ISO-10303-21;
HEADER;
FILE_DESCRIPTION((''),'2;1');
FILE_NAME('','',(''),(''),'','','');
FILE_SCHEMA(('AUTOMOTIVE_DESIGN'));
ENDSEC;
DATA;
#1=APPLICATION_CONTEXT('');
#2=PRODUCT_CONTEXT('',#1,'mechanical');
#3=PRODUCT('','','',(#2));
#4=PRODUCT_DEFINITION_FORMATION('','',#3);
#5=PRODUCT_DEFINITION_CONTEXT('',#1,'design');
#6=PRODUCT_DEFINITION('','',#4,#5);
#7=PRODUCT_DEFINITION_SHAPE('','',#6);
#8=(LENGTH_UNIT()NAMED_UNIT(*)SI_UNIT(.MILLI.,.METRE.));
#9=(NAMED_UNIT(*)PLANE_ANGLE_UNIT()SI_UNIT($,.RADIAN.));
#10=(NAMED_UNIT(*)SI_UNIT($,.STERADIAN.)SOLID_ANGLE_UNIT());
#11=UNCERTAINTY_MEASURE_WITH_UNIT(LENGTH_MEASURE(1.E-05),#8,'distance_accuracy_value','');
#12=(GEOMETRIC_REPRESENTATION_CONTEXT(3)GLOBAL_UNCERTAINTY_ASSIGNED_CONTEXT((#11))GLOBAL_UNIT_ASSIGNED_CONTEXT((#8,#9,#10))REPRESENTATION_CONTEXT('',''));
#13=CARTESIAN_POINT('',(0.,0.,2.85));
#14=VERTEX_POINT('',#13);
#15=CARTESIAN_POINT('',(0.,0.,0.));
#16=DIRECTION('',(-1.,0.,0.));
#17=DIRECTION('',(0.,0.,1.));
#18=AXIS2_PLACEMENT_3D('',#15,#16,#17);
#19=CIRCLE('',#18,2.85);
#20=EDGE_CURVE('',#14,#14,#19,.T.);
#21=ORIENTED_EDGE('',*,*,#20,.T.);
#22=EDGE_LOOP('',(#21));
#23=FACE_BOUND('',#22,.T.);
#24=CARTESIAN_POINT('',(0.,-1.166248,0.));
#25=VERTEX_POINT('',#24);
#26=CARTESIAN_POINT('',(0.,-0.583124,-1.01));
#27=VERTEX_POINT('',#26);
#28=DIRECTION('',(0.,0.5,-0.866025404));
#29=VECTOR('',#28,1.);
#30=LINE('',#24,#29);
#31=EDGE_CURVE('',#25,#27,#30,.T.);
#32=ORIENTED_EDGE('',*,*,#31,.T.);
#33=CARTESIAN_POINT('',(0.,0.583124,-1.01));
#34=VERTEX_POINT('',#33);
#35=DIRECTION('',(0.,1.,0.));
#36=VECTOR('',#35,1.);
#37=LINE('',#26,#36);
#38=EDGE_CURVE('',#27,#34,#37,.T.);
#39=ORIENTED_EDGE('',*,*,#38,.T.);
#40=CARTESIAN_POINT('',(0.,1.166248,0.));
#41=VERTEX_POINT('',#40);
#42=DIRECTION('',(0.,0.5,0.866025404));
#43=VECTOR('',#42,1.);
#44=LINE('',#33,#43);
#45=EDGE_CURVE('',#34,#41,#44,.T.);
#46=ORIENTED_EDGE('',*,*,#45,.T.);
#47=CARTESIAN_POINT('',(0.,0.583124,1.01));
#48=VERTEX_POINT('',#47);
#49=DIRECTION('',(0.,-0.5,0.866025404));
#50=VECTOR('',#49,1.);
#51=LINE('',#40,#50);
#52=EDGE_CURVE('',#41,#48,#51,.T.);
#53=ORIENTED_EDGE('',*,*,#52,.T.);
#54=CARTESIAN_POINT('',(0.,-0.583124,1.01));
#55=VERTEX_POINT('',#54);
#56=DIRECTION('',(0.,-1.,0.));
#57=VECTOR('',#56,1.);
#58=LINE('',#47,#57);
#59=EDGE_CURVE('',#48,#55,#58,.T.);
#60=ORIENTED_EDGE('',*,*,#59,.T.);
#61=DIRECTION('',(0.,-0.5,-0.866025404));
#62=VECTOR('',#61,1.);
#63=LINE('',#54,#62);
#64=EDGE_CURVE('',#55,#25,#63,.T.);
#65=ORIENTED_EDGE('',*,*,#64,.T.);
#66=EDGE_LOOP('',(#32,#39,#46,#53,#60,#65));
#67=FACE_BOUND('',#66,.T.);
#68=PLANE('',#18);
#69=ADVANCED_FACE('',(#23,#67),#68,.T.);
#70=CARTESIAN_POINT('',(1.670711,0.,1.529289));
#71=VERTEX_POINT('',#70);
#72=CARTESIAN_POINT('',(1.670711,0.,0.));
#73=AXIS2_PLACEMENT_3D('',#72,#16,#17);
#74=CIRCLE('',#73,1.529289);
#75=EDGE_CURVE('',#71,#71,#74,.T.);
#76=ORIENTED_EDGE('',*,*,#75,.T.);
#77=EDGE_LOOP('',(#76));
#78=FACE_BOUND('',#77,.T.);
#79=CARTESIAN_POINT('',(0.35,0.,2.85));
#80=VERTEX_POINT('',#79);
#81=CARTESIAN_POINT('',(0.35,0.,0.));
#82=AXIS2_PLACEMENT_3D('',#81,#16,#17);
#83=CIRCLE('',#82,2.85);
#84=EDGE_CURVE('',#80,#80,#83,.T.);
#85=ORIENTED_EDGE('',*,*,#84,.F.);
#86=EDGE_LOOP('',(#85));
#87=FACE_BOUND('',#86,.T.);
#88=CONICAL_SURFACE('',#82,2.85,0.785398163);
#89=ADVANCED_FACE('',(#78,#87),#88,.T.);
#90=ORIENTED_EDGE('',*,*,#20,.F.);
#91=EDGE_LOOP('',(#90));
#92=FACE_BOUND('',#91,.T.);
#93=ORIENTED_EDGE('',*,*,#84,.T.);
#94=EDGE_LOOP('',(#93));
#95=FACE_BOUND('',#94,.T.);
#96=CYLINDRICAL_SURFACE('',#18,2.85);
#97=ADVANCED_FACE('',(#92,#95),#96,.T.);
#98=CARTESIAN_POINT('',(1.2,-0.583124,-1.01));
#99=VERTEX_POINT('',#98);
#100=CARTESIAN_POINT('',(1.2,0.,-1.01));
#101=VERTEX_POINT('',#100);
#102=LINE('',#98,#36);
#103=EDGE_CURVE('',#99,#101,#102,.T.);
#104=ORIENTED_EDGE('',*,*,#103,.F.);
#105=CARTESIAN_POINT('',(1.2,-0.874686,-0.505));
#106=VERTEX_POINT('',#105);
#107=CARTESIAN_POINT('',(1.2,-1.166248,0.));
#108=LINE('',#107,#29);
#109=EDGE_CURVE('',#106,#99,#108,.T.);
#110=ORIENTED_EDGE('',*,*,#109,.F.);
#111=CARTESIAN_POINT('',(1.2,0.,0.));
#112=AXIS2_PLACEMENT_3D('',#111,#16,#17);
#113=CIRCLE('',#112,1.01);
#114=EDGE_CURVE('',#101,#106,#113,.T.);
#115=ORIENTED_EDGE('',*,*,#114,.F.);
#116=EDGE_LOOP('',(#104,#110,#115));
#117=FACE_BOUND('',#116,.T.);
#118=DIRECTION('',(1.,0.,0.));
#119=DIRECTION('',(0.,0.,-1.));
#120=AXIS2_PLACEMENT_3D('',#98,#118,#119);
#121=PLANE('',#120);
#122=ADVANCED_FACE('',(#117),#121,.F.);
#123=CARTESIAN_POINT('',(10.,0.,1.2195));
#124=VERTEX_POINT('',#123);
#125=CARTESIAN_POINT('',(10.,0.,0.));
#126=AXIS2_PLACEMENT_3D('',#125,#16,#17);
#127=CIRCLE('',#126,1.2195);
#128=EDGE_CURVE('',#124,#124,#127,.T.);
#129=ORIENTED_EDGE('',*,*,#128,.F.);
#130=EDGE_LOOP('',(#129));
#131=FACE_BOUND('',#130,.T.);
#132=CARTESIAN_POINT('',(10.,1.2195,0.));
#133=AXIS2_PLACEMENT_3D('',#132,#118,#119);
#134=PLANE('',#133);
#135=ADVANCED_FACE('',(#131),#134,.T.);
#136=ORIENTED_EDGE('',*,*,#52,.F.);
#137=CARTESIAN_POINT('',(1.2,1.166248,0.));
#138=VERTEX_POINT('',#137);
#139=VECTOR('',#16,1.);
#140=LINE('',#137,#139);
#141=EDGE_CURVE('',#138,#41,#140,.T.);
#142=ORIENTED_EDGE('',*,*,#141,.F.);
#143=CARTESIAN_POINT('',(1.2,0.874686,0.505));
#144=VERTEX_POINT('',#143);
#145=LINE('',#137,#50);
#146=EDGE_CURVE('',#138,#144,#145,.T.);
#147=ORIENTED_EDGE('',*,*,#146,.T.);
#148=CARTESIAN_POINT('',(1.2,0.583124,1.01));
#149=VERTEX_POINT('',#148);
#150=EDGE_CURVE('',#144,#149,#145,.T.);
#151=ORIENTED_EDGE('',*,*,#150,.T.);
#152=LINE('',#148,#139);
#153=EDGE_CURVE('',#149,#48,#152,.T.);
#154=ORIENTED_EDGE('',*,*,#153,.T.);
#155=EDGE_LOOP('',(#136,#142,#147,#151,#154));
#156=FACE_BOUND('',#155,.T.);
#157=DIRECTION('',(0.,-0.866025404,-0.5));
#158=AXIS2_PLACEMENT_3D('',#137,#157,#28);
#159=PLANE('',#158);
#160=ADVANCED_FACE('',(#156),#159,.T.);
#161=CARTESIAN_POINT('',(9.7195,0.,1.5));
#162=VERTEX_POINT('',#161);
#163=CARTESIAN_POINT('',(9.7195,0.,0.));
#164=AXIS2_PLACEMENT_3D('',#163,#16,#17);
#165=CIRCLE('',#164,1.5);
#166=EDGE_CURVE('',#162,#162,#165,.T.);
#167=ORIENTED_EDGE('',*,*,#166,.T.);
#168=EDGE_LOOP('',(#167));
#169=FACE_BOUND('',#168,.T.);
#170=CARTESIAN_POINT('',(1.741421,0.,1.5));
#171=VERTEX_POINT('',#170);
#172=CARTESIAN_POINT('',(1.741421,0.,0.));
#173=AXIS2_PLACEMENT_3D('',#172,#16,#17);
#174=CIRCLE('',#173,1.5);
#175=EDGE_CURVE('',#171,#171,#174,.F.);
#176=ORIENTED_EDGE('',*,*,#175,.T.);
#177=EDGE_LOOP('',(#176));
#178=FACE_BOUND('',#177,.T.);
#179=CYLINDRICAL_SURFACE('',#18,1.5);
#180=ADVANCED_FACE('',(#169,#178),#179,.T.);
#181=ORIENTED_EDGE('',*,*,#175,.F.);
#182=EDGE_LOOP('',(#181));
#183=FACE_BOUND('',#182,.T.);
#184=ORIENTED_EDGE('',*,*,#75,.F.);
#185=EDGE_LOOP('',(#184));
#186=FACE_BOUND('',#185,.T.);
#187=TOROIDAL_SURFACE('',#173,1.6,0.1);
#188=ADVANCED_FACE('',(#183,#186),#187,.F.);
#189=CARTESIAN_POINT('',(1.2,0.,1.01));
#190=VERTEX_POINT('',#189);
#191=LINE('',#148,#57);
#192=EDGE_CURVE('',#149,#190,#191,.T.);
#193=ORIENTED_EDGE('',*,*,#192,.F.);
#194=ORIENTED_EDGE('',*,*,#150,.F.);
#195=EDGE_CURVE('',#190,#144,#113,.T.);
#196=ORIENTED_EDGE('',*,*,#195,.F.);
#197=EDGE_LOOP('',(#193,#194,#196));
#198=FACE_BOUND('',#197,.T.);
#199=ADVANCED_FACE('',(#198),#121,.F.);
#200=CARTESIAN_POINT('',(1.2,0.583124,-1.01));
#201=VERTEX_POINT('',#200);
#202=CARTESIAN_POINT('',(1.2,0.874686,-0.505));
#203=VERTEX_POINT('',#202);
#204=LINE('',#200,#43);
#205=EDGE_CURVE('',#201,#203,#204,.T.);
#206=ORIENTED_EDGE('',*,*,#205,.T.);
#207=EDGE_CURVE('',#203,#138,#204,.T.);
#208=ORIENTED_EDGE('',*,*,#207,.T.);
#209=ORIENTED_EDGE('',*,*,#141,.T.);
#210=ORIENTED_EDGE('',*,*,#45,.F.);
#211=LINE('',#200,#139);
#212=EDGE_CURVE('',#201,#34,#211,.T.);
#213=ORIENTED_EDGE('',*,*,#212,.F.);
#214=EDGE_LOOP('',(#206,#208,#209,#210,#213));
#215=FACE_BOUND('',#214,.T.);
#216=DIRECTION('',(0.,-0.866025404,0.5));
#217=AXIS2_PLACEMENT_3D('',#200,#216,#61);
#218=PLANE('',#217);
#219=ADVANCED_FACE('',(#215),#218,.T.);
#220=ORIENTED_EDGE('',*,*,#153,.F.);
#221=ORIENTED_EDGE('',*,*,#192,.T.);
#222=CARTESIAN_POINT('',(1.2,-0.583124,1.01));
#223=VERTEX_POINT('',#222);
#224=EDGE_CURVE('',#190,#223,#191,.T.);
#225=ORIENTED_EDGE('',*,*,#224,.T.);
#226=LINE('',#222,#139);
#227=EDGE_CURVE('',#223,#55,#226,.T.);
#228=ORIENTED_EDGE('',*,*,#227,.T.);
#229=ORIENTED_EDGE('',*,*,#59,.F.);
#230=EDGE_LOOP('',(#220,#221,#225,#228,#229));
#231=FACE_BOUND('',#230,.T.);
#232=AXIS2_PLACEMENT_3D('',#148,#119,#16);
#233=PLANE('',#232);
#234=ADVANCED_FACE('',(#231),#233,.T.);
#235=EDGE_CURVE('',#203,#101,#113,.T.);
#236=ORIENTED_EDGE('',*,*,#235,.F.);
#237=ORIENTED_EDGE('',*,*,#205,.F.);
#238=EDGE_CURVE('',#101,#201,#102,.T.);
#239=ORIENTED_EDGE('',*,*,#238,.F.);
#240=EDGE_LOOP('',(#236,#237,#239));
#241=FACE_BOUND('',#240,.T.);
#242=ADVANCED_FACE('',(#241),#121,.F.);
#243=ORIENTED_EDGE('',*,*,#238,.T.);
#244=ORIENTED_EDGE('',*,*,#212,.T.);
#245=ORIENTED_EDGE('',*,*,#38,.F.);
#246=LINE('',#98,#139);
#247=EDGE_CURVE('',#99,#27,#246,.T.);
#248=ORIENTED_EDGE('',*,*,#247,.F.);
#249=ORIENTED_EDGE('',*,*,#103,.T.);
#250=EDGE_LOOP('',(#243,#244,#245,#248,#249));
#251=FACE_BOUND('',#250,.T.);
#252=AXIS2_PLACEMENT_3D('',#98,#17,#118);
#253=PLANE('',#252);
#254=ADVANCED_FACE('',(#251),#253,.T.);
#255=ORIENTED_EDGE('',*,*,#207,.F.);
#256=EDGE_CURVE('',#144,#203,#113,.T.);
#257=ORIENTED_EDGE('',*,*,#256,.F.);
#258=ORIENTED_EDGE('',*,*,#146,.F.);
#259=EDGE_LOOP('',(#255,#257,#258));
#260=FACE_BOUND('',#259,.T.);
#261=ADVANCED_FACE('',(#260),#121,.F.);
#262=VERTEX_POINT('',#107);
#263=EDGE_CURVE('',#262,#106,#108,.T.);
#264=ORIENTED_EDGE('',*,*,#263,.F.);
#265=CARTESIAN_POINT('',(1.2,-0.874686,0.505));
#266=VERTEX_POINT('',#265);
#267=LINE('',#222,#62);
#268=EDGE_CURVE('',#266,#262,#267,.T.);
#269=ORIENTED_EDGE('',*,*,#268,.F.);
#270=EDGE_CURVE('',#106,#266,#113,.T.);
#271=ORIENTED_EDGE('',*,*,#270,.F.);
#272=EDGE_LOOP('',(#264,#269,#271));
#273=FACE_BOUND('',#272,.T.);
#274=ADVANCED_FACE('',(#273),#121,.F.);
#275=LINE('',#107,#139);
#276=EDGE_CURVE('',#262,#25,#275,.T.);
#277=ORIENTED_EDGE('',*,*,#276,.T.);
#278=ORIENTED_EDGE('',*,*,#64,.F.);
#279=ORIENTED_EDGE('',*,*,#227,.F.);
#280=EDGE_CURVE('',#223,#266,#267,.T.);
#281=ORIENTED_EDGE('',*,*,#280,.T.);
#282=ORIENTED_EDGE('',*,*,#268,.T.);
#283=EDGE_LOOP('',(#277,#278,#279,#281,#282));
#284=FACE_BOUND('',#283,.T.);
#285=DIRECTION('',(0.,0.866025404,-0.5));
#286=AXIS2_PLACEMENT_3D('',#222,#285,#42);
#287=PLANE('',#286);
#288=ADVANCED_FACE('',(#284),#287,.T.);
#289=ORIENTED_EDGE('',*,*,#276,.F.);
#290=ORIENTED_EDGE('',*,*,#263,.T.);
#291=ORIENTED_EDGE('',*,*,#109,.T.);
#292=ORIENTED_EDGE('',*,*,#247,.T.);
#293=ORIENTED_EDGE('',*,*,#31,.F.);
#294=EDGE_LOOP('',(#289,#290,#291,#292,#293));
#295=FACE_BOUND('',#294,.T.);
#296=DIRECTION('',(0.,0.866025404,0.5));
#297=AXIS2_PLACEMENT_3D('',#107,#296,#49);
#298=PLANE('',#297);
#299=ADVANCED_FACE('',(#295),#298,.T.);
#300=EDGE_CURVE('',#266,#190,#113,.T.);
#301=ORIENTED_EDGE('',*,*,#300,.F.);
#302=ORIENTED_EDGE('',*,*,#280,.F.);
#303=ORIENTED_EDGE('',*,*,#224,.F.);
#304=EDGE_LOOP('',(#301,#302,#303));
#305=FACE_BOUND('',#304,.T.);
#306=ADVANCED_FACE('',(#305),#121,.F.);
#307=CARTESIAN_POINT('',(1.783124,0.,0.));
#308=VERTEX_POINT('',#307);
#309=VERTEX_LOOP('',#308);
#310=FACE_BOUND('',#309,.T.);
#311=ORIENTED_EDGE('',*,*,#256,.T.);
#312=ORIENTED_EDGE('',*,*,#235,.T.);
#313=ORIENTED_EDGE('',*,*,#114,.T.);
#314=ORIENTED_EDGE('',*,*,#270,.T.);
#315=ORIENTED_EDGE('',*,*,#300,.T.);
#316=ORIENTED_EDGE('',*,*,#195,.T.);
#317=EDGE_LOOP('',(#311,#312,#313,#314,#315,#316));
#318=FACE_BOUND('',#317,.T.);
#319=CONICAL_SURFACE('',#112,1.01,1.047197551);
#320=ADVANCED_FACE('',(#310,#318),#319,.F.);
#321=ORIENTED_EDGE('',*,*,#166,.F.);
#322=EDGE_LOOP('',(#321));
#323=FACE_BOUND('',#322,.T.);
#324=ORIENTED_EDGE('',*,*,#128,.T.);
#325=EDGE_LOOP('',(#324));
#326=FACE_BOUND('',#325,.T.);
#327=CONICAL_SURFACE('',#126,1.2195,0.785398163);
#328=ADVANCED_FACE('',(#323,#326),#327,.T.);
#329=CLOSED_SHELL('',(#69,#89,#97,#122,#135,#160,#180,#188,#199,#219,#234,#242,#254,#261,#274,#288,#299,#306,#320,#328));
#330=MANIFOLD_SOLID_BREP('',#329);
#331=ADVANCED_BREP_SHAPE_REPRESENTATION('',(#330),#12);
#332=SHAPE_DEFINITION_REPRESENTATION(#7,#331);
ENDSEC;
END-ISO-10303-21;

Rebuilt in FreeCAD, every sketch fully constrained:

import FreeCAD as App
import Part
import Sketcher

V = App.Vector
Q = App.Units.Quantity


def edges_at(feature, points):
    """Names of the edges that pass closest to the given points."""
    edges = feature.Shape.Edges
    near = lambda p: min(range(len(edges)), key=lambda i: edges[i].distToShape(Part.Vertex(*p))[0])
    return sorted({f"Edge{near(p) + 1}" for p in points})

doc = App.newDocument("Part")
body = doc.addObject("PartDesign::Body", "Body")

# Sketch on XY plane
sketch1 = body.newObject("Sketcher::SketchObject", "Sketch")
sketch1.AttachmentSupport = (doc.getObject("XY_Plane"), [""])
sketch1.MapMode = "FlatFace"
sketch1.addGeometry([
    Part.LineSegment(V(0, 2.85, 0), V(0, 0, 0)),  # 0
    Part.LineSegment(V(0, 0, 0), V(10, 0, 0)),  # 1
    Part.LineSegment(V(10, 0, 0), V(10, 1.2195, 0)),  # 2
    Part.LineSegment(V(10, 1.2195, 0), V(9.7195, 1.5, 0)),  # 3
    Part.LineSegment(V(9.7195, 1.5, 0), V(1.7, 1.5, 0)),  # 4
    Part.LineSegment(V(1.7, 1.5, 0), V(0.35, 2.85, 0)),  # 5
    Part.LineSegment(V(0.35, 2.85, 0), V(0, 2.85, 0)),  # 6
], False)
sketch1.addConstraint([
    Sketcher.Constraint("Coincident", 0, 2, 1, 1),
    Sketcher.Constraint("Coincident", 1, 2, 2, 1),
    Sketcher.Constraint("Coincident", 2, 2, 3, 1),
    Sketcher.Constraint("Coincident", 3, 2, 4, 1),
    Sketcher.Constraint("Coincident", 4, 2, 5, 1),
    Sketcher.Constraint("Coincident", 5, 2, 6, 1),
    Sketcher.Constraint("Coincident", 6, 2, 0, 1),
    Sketcher.Constraint("Vertical", 0),
    Sketcher.Constraint("Horizontal", 1),
    Sketcher.Constraint("Vertical", 2),
    Sketcher.Constraint("Horizontal", 4),
    Sketcher.Constraint("Horizontal", 6),
    Sketcher.Constraint("Coincident", 0, 2, -1, 1),
    Sketcher.Constraint("Parallel", 3, 5),
    Sketcher.Constraint("DistanceX", 1, 1, 1, 2, 10.0),
    Sketcher.Constraint("Angle", 3, Q("135 deg")),
    Sketcher.Constraint("DistanceX", 6, 2, 6, 1, 0.35),
    Sketcher.Constraint("DistanceY", 0, 2, 0, 1, 2.85),
    Sketcher.Constraint("DistanceY", -1, 1, 3, 2, 1.5),
    Sketcher.Constraint("DistanceX", 4, 2, 4, 1, 8.0195),
])
revolution = body.newObject("PartDesign::Revolution", "Revolution")
revolution.Profile = sketch1
revolution.ReferenceAxis = (sketch1, ["H_Axis"])
revolution.Angle = 360
doc.recompute()

fillet = body.newObject("PartDesign::Fillet", "Fillet")
fillet.Base = (revolution, edges_at(revolution, [(1.7, -1.5, 0)]))
fillet.Radius = 0.1

# Sketch on XY plane
sketch2 = body.newObject("Sketcher::SketchObject", "Sketch001")
sketch2.AttachmentSupport = (doc.getObject("XY_Plane"), [""])
sketch2.MapMode = "FlatFace"
sketch2.addGeometry([
    Part.LineSegment(V(1.2, 1.01, 0), V(0, 1.01, 0)),
    Part.LineSegment(V(0, 1.01, 0), V(0, 0, 0)),
    Part.LineSegment(V(0, 0, 0), V(1.783124, 0, 0)),
    Part.LineSegment(V(1.783124, 0, 0), V(1.2, 1.01, 0)),
], False)
sketch2.addConstraint([
    Sketcher.Constraint("Coincident", 0, 2, 1, 1),
    Sketcher.Constraint("Coincident", 1, 2, 2, 1),
    Sketcher.Constraint("Coincident", 2, 2, 3, 1),
    Sketcher.Constraint("Coincident", 3, 2, 0, 1),
    Sketcher.Constraint("Horizontal", 0),
    Sketcher.Constraint("Vertical", 1),
    Sketcher.Constraint("Horizontal", 2),
    Sketcher.Constraint("Coincident", 1, 2, -1, 1),
    Sketcher.Constraint("Angle", 3, Q("120 deg")),
    Sketcher.Constraint("DistanceX", 0, 2, 0, 1, 1.2),
    Sketcher.Constraint("DistanceY", 1, 2, 1, 1, 1.01),
])
groove = body.newObject("PartDesign::Groove", "Groove")
groove.Profile = sketch2
groove.ReferenceAxis = (sketch2, ["H_Axis"])
groove.Angle = 360

# Sketch on YZ plane
sketch3 = body.newObject("Sketcher::SketchObject", "Sketch002")
sketch3.AttachmentSupport = (doc.getObject("YZ_Plane"), [""])
sketch3.MapMode = "FlatFace"
sketch3.addGeometry([
    Part.LineSegment(V(0.583124, -1.01, 0), V(-0.583124, -1.01, 0)),  # 0
    Part.LineSegment(V(-0.583124, -1.01, 0), V(-1.166248, 0, 0)),  # 1
    Part.LineSegment(V(-1.166248, 0, 0), V(-0.583124, 1.01, 0)),  # 2
    Part.LineSegment(V(-0.583124, 1.01, 0), V(0.583124, 1.01, 0)),  # 3
    Part.LineSegment(V(0.583124, 1.01, 0), V(1.166248, 0, 0)),  # 4
    Part.LineSegment(V(1.166248, 0, 0), V(0.583124, -1.01, 0)),  # 5
], False)
sketch3.addConstraint([
    Sketcher.Constraint("Coincident", 0, 2, 1, 1),
    Sketcher.Constraint("Coincident", 1, 2, 2, 1),
    Sketcher.Constraint("Coincident", 2, 2, 3, 1),
    Sketcher.Constraint("Coincident", 3, 2, 4, 1),
    Sketcher.Constraint("Coincident", 4, 2, 5, 1),
    Sketcher.Constraint("Coincident", 5, 2, 0, 1),
    Sketcher.Constraint("Horizontal", 0),
    Sketcher.Constraint("Horizontal", 3),
    Sketcher.Constraint("Symmetric", 0, 2, 3, 2, -1, 1),
    Sketcher.Constraint("Symmetric", 1, 2, 4, 2, -1, 1),
    Sketcher.Constraint("PointOnObject", 1, 2, -1),
    Sketcher.Constraint("Parallel", 2, 5),
    Sketcher.Constraint("Vertical", 0, 2, 2, 2),
    Sketcher.Constraint("Angle", 1, Q("120 deg")),
    Sketcher.Constraint("DistanceY", 0, 2, -1, 1, 1.01),
    Sketcher.Constraint("DistanceX", 0, 2, 0, 1, 1.166248),
])
pocket1 = body.newObject("PartDesign::Pocket", "Pocket")
pocket1.Profile = sketch3
pocket1.Length = 1.2
pocket1.Reversed = True

doc.recompute()
